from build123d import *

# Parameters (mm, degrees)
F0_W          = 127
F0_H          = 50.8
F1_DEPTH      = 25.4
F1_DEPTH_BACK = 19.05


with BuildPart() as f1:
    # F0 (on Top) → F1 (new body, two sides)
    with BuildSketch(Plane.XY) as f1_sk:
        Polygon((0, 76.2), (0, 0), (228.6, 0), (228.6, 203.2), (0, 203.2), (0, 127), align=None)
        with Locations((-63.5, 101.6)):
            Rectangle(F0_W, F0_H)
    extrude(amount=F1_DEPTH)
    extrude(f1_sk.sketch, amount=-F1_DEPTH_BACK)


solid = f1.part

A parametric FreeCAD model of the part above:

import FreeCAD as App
import Part
import Sketcher
from FreeCAD import Vector
Q = App.Units.Quantity

doc = App.newDocument("Part")
body = doc.addObject("PartDesign::Body", "Body")

sketch1 = body.newObject("Sketcher::SketchObject", "Sketch")
sketch1.AttachmentSupport = (doc.getObject("XY_Plane"), [""])
sketch1.MapMode = "FlatFace"
sketch1.addGeometry(Part.LineSegment(Vector(0, 0, 0), Vector(228.6, 0, 0)), False)
sketch1.addGeometry(Part.LineSegment(Vector(228.6, 0, 0), Vector(228.6, 203.2, 0)), False)
sketch1.addGeometry(Part.LineSegment(Vector(228.6, 203.2, 0), Vector(0, 203.2, 0)), False)
sketch1.addGeometry(Part.LineSegment(Vector(0, 203.2, 0), Vector(0, 127, 0)), False)
sketch1.addGeometry(Part.LineSegment(Vector(0, 127, 0), Vector(-127, 127, 0)), False)
sketch1.addGeometry(Part.LineSegment(Vector(-127, 127, 0), Vector(-127, 76.2, 0)), False)
sketch1.addGeometry(Part.LineSegment(Vector(-127, 76.2, 0), Vector(0, 76.2, 0)), False)
sketch1.addGeometry(Part.LineSegment(Vector(0, 76.2, 0), Vector(0, 0, 0)), False)
sketch1.addConstraint(Sketcher.Constraint("Coincident", 0, 2, 1, 1))
sketch1.addConstraint(Sketcher.Constraint("Coincident", 1, 2, 2, 1))
sketch1.addConstraint(Sketcher.Constraint("Coincident", 2, 2, 3, 1))
sketch1.addConstraint(Sketcher.Constraint("Coincident", 3, 2, 4, 1))
sketch1.addConstraint(Sketcher.Constraint("Coincident", 4, 2, 5, 1))
sketch1.addConstraint(Sketcher.Constraint("Coincident", 5, 2, 6, 1))
sketch1.addConstraint(Sketcher.Constraint("Coincident", 6, 2, 7, 1))
sketch1.addConstraint(Sketcher.Constraint("Coincident", 7, 2, 0, 1))
sketch1.addConstraint(Sketcher.Constraint("Horizontal", 0))
sketch1.addConstraint(Sketcher.Constraint("Vertical", 1))
sketch1.addConstraint(Sketcher.Constraint("Horizontal", 2))
sketch1.addConstraint(Sketcher.Constraint("Vertical", 3))
sketch1.addConstraint(Sketcher.Constraint("Horizontal", 4))
sketch1.addConstraint(Sketcher.Constraint("Vertical", 5))
sketch1.addConstraint(Sketcher.Constraint("Horizontal", 6))
sketch1.addConstraint(Sketcher.Constraint("Vertical", 7))
sketch1.addConstraint(Sketcher.Constraint("Coincident", 7, 2, -1, 1))
sketch1.addConstraint(Sketcher.Constraint("PointOnObject", 2, 2, -2))
sketch1.addConstraint(Sketcher.Constraint("Equal", 3, 7))
sketch1.addConstraint(Sketcher.Constraint("DistanceX", 0, 1, 0, 2, Q("9 in")))
sketch1.addConstraint(Sketcher.Constraint("DistanceX", 4, 2, 4, 1, Q("5 in")))
sketch1.addConstraint(Sketcher.Constraint("DistanceY", 1, 1, 1, 2, Q("8 in")))
sketch1.addConstraint(Sketcher.Constraint("DistanceY", 3, 2, 3, 1, Q("3 in")))
pad1 = body.newObject("PartDesign::Pad", "Pad")
pad1.Profile = sketch1
pad1.Type = "TwoLengths"
pad1.Length = Q("1 in")
pad1.Length2 = Q("0.75 in")

doc.recompute()
